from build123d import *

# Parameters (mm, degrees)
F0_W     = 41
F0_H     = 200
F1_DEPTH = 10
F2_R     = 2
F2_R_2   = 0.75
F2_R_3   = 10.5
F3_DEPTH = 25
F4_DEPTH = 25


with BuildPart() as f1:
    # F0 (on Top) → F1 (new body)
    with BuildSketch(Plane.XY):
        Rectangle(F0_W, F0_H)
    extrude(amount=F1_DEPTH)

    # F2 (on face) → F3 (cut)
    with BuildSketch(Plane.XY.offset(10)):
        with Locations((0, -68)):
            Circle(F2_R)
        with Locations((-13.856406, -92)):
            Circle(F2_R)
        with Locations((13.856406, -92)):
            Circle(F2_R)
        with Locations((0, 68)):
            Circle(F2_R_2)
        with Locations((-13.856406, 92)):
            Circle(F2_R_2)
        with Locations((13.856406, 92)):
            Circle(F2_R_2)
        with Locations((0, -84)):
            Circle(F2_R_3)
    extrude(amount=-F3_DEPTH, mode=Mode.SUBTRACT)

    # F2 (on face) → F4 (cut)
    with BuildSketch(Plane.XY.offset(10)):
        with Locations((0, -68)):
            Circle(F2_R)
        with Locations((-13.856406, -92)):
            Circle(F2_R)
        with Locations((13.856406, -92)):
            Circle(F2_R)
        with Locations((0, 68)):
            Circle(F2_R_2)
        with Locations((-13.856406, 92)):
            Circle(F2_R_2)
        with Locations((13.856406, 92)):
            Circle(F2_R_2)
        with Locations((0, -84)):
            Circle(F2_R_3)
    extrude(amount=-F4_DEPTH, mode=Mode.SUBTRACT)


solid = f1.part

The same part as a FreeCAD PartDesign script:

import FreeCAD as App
import Part
import Sketcher

V = App.Vector

doc = App.newDocument("Part")
body = doc.addObject("PartDesign::Body", "Body")

# Sketch on XY plane
sketch1 = body.newObject("Sketcher::SketchObject", "Sketch")
sketch1.AttachmentSupport = (doc.getObject("XY_Plane"), [""])
sketch1.MapMode = "FlatFace"
sketch1.addGeometry([
    Part.LineSegment(V(-20, 100, 0), V(-20, -100, 0)),
    Part.LineSegment(V(-20, -100, 0), V(20, -100, 0)),
    Part.LineSegment(V(20, -100, 0), V(20, 100, 0)),
    Part.LineSegment(V(20, 100, 0), V(-20, 100, 0)),
], False)
sketch1.addConstraint([
    Sketcher.Constraint("Coincident", 0, 2, 1, 1),
    Sketcher.Constraint("Coincident", 1, 2, 2, 1),
    Sketcher.Constraint("Coincident", 2, 2, 3, 1),
    Sketcher.Constraint("Coincident", 3, 2, 0, 1),
    Sketcher.Constraint("Vertical", 0),
    Sketcher.Constraint("Horizontal", 1),
    Sketcher.Constraint("Vertical", 2),
    Sketcher.Constraint("Horizontal", 3),
    Sketcher.Constraint("Symmetric", 0, 2, 2, 2, -1, 1),
    Sketcher.Constraint("DistanceX", 1, 1, 1, 2, 41.0),
    Sketcher.Constraint("DistanceY", 0, 2, 0, 1, 200.0),
])
pad1 = body.newObject("PartDesign::Pad", "Pad")
pad1.Profile = sketch1
pad1.Length = 10

# Sketch on XY plane
sketch2 = body.newObject("Sketcher::SketchObject", "Sketch001")
sketch2.AttachmentSupport = (doc.getObject("XY_Plane"), [""])
sketch2.MapMode = "FlatFace"
sketch2.AttachmentOffset = App.Placement(V(0, 0, 10), App.Rotation())
sketch2.addGeometry([
    Part.Circle(V(0, -68, 0), V(0, 0, 1), 2),  # 0
    Part.Circle(V(-13.9, -92, 0), V(0, 0, 1), 2),  # 1
    Part.Circle(V(13.9, -92, 0), V(0, 0, 1), 2),  # 2
    Part.Circle(V(0, 68, 0), V(0, 0, 1), 0.8),  # 3
    Part.Circle(V(-13.9, 92, 0), V(0, 0, 1), 0.8),  # 4
    Part.Circle(V(13.9, 92, 0), V(0, 0, 1), 0.8),  # 5
    Part.Circle(V(0, -84, 0), V(0, 0, 1), 10.5),  # 6
], False)
sketch2.addConstraint([
    Sketcher.Constraint("Equal", 0, 1),
    Sketcher.Constraint("Equal", 1, 2),
    Sketcher.Constraint("Equal", 3, 4),
    Sketcher.Constraint("Equal", 4, 5),
    Sketcher.Constraint("Symmetric", 0, 3, 3, 3, -1, 1),
    Sketcher.Constraint("Symmetric", 2, 3, 4, 3, -1, 1),
    Sketcher.Constraint("Symmetric", 1, 3, 5, 3, -1, 1),
    Sketcher.Constraint("Symmetric", 1, 3, 2, 3, -2),
    Sketcher.Constraint("PointOnObject", 0, 3, -2),
    Sketcher.Constraint("PointOnObject", 6, 3, -2),
    Sketcher.Constraint("Diameter", 0, 4.0),
    Sketcher.Constraint("Diameter", 6, 21.0),
    Sketcher.Constraint("Diameter", 3, 1.5),
    Sketcher.Constraint("DistanceY", 0, 3, -1, 1, 68.0),
    Sketcher.Constraint("DistanceY", 1, 3, -1, 1, 92.0),
    Sketcher.Constraint("DistanceY", 6, 3, -1, 1, 84.0),
    Sketcher.Constraint("DistanceX", 1, 3, 2, 3, 27.712812),
])
pocket1 = body.newObject("PartDesign::Pocket", "Pocket")
pocket1.Profile = sketch2
pocket1.Length = 25

# Sketch on XY plane
sketch3 = body.newObject("Sketcher::SketchObject", "Sketch002")
sketch3.AttachmentSupport = (doc.getObject("XY_Plane"), [""])
sketch3.MapMode = "FlatFace"
sketch3.AttachmentOffset = App.Placement(V(0, 0, 10), App.Rotation())
sketch3.addGeometry([
    Part.Circle(V(0, -68, 0), V(0, 0, 1), 2),  # 0
    Part.Circle(V(-13.9, -92, 0), V(0, 0, 1), 2),  # 1
    Part.Circle(V(13.9, -92, 0), V(0, 0, 1), 2),  # 2
    Part.Circle(V(0, 68, 0), V(0, 0, 1), 0.8),  # 3
    Part.Circle(V(-13.9, 92, 0), V(0, 0, 1), 0.8),  # 4
    Part.Circle(V(13.9, 92, 0), V(0, 0, 1), 0.8),  # 5
    Part.Circle(V(0, -84, 0), V(0, 0, 1), 10.5),  # 6
], False)
sketch3.addConstraint([
    Sketcher.Constraint("Equal", 0, 1),
    Sketcher.Constraint("Equal", 1, 2),
    Sketcher.Constraint("Equal", 3, 4),
    Sketcher.Constraint("Equal", 4, 5),
    Sketcher.Constraint("Symmetric", 0, 3, 3, 3, -1, 1),
    Sketcher.Constraint("Symmetric", 2, 3, 4, 3, -1, 1),
    Sketcher.Constraint("Symmetric", 1, 3, 5, 3, -1, 1),
    Sketcher.Constraint("Symmetric", 1, 3, 2, 3, -2),
    Sketcher.Constraint("PointOnObject", 0, 3, -2),
    Sketcher.Constraint("PointOnObject", 6, 3, -2),
    Sketcher.Constraint("Diameter", 0, 4.0),
    Sketcher.Constraint("Diameter", 6, 21.0),
    Sketcher.Constraint("Diameter", 3, 1.5),
    Sketcher.Constraint("DistanceY", 0, 3, -1, 1, 68.0),
    Sketcher.Constraint("DistanceY", 1, 3, -1, 1, 92.0),
    Sketcher.Constraint("DistanceY", 6, 3, -1, 1, 84.0),
    Sketcher.Constraint("DistanceX", 1, 3, 2, 3, 27.712812),
])
pocket2 = body.newObject("PartDesign::Pocket", "Pocket001")
pocket2.Profile = sketch3
pocket2.Length = 25

doc.recompute()
